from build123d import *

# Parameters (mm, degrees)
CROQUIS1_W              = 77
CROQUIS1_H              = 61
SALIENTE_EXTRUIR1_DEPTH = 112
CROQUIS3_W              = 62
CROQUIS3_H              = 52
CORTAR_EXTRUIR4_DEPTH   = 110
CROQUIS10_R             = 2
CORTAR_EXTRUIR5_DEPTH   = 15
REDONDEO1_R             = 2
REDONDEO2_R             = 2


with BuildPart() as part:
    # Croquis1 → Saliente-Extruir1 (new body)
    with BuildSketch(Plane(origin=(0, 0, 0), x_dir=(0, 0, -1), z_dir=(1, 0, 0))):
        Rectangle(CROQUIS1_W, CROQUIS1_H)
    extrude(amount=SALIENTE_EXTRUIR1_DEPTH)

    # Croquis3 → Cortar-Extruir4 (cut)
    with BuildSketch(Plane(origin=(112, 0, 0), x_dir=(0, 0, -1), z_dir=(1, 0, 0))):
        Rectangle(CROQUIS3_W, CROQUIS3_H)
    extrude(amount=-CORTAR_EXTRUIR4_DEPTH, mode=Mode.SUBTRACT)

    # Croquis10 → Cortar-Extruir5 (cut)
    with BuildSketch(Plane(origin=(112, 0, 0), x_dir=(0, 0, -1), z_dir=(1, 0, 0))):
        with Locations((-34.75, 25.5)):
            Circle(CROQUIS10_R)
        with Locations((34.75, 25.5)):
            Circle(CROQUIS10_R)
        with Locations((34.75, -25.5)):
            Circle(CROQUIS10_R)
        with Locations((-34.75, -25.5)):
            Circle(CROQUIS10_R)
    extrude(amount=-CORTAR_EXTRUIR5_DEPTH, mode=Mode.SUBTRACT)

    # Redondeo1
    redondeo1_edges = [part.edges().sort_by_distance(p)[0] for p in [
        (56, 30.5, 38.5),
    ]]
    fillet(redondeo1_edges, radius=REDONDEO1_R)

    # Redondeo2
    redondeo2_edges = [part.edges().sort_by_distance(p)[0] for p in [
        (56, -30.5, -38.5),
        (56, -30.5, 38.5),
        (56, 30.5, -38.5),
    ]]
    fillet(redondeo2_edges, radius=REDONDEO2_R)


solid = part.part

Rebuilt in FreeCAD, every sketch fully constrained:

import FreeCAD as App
import Part
import Sketcher
from FreeCAD import Vector
Q = App.Units.Quantity


def edges_at(feature, points):
    """Names of the edges that pass closest to the given points."""
    edges = feature.Shape.Edges
    near = lambda p: min(range(len(edges)), key=lambda i: edges[i].distToShape(Part.Vertex(*p))[0])
    return sorted({f"Edge{near(p) + 1}" for p in points})


def add_polygon(sketch, points):
    """Adds a closed chain of lines whose ends are joined by coincident constraints."""
    first, n = sketch.GeometryCount, len(points)
    for a, b in zip(points, points[1:] + points[:1]):
        sketch.addGeometry(Part.LineSegment(App.Vector(*a, 0), App.Vector(*b, 0)), False)
    for i in range(n):
        sketch.addConstraint(Sketcher.Constraint("Coincident", first + i, 2, first + (i + 1) % n, 1))

doc = App.newDocument("Part")
body = doc.addObject("PartDesign::Body", "Body")

sketch1 = doc.addObject("Sketcher::SketchObject", "Sketch")
body.addObject(sketch1)
sketch1.AttachmentSupport = (doc.YZ_Plane, [""])
sketch1.MapMode = "FlatFace"
add_polygon(sketch1, [(30, 38), (-30, 38), (-30, -38), (30, -38)])
sketch1.addConstraint(Sketcher.Constraint("Horizontal", 0))
sketch1.addConstraint(Sketcher.Constraint("Vertical", 1))
sketch1.addConstraint(Sketcher.Constraint("Horizontal", 2))
sketch1.addConstraint(Sketcher.Constraint("Vertical", 3))
sketch1.addConstraint(Sketcher.Constraint("Symmetric", 0, 2, 2, 2, -1, 1))
sketch1.addConstraint(Sketcher.Constraint("DistanceX", 0, 2, 0, 1, Q("61 mm")))
sketch1.addConstraint(Sketcher.Constraint("DistanceY", 1, 2, 1, 1, Q("77 mm")))
pad1 = doc.addObject("PartDesign::Pad", "Pad")
body.addObject(pad1)
pad1.Profile = sketch1
pad1.Length = 112

sketch2 = doc.addObject("Sketcher::SketchObject", "Sketch001")
body.addObject(sketch2)
sketch2.AttachmentSupport = (doc.YZ_Plane, [""])
sketch2.MapMode = "FlatFace"
sketch2.AttachmentOffset = App.Placement(Vector(0, 0, 112), App.Rotation())
add_polygon(sketch2, [(26, 31), (-26, 31), (-26, -31), (26, -31)])
sketch2.addConstraint(Sketcher.Constraint("Horizontal", 0))
sketch2.addConstraint(Sketcher.Constraint("Vertical", 1))
sketch2.addConstraint(Sketcher.Constraint("Horizontal", 2))
sketch2.addConstraint(Sketcher.Constraint("Vertical", 3))
sketch2.addConstraint(Sketcher.Constraint("Symmetric", 0, 2, 2, 2, -1, 1))
sketch2.addConstraint(Sketcher.Constraint("DistanceX", 0, 2, 0, 1, Q("52 mm")))
sketch2.addConstraint(Sketcher.Constraint("DistanceY", 1, 2, 1, 1, Q("62 mm")))
pocket1 = doc.addObject("PartDesign::Pocket", "Pocket")
body.addObject(pocket1)
pocket1.Profile = sketch2
pocket1.Length = 110

sketch3 = doc.addObject("Sketcher::SketchObject", "Sketch002")
body.addObject(sketch3)
sketch3.AttachmentSupport = (doc.YZ_Plane, [""])
sketch3.MapMode = "FlatFace"
sketch3.AttachmentOffset = App.Placement(Vector(0, 0, 112), App.Rotation())
sketch3.addGeometry(Part.Circle(Vector(25.5, 34.8, 0), Vector(0, 0, 1), 2), False)
sketch3.addGeometry(Part.Circle(Vector(25.5, -34.8, 0), Vector(0, 0, 1), 2), False)
sketch3.addGeometry(Part.Circle(Vector(-25.5, -34.8, 0), Vector(0, 0, 1), 2), False)
sketch3.addGeometry(Part.Circle(Vector(-25.5, 34.8, 0), Vector(0, 0, 1), 2), False)
sketch3.addConstraint(Sketcher.Constraint("Equal", 0, 1))
sketch3.addConstraint(Sketcher.Constraint("Equal", 1, 2))
sketch3.addConstraint(Sketcher.Constraint("Equal", 2, 3))
sketch3.addConstraint(Sketcher.Constraint("Symmetric", 0, 3, 2, 3, -1, 1))
sketch3.addConstraint(Sketcher.Constraint("Symmetric", 1, 3, 3, 3, -1, 1))
sketch3.addConstraint(Sketcher.Constraint("Symmetric", 1, 3, 2, 3, -2))
sketch3.addConstraint(Sketcher.Constraint("Diameter", 0, Q("4 mm")))
sketch3.addConstraint(Sketcher.Constraint("DistanceX", 2, 3, 1, 3, Q("51 mm")))
sketch3.addConstraint(Sketcher.Constraint("DistanceY", 1, 3, 0, 3, Q("69.5 mm")))
pocket2 = doc.addObject("PartDesign::Pocket", "Pocket001")
body.addObject(pocket2)
pocket2.Profile = sketch3
pocket2.Length = 15
doc.recompute()

fillet = doc.addObject("PartDesign::Fillet", "Fillet")
body.addObject(fillet)
fillet.Base = (pocket2, edges_at(pocket2, [(56, 30.5, 38.5)]))
fillet.Radius = 2
doc.recompute()

fillet2 = doc.addObject("PartDesign::Fillet", "Fillet001")
body.addObject(fillet2)
fillet2.Base = (fillet, edges_at(fillet, [(56, -30.5, -38.5), (56, -30.5, 38.5), (56, 30.5, -38.5)]))
fillet2.Radius = 2

doc.recompute()
